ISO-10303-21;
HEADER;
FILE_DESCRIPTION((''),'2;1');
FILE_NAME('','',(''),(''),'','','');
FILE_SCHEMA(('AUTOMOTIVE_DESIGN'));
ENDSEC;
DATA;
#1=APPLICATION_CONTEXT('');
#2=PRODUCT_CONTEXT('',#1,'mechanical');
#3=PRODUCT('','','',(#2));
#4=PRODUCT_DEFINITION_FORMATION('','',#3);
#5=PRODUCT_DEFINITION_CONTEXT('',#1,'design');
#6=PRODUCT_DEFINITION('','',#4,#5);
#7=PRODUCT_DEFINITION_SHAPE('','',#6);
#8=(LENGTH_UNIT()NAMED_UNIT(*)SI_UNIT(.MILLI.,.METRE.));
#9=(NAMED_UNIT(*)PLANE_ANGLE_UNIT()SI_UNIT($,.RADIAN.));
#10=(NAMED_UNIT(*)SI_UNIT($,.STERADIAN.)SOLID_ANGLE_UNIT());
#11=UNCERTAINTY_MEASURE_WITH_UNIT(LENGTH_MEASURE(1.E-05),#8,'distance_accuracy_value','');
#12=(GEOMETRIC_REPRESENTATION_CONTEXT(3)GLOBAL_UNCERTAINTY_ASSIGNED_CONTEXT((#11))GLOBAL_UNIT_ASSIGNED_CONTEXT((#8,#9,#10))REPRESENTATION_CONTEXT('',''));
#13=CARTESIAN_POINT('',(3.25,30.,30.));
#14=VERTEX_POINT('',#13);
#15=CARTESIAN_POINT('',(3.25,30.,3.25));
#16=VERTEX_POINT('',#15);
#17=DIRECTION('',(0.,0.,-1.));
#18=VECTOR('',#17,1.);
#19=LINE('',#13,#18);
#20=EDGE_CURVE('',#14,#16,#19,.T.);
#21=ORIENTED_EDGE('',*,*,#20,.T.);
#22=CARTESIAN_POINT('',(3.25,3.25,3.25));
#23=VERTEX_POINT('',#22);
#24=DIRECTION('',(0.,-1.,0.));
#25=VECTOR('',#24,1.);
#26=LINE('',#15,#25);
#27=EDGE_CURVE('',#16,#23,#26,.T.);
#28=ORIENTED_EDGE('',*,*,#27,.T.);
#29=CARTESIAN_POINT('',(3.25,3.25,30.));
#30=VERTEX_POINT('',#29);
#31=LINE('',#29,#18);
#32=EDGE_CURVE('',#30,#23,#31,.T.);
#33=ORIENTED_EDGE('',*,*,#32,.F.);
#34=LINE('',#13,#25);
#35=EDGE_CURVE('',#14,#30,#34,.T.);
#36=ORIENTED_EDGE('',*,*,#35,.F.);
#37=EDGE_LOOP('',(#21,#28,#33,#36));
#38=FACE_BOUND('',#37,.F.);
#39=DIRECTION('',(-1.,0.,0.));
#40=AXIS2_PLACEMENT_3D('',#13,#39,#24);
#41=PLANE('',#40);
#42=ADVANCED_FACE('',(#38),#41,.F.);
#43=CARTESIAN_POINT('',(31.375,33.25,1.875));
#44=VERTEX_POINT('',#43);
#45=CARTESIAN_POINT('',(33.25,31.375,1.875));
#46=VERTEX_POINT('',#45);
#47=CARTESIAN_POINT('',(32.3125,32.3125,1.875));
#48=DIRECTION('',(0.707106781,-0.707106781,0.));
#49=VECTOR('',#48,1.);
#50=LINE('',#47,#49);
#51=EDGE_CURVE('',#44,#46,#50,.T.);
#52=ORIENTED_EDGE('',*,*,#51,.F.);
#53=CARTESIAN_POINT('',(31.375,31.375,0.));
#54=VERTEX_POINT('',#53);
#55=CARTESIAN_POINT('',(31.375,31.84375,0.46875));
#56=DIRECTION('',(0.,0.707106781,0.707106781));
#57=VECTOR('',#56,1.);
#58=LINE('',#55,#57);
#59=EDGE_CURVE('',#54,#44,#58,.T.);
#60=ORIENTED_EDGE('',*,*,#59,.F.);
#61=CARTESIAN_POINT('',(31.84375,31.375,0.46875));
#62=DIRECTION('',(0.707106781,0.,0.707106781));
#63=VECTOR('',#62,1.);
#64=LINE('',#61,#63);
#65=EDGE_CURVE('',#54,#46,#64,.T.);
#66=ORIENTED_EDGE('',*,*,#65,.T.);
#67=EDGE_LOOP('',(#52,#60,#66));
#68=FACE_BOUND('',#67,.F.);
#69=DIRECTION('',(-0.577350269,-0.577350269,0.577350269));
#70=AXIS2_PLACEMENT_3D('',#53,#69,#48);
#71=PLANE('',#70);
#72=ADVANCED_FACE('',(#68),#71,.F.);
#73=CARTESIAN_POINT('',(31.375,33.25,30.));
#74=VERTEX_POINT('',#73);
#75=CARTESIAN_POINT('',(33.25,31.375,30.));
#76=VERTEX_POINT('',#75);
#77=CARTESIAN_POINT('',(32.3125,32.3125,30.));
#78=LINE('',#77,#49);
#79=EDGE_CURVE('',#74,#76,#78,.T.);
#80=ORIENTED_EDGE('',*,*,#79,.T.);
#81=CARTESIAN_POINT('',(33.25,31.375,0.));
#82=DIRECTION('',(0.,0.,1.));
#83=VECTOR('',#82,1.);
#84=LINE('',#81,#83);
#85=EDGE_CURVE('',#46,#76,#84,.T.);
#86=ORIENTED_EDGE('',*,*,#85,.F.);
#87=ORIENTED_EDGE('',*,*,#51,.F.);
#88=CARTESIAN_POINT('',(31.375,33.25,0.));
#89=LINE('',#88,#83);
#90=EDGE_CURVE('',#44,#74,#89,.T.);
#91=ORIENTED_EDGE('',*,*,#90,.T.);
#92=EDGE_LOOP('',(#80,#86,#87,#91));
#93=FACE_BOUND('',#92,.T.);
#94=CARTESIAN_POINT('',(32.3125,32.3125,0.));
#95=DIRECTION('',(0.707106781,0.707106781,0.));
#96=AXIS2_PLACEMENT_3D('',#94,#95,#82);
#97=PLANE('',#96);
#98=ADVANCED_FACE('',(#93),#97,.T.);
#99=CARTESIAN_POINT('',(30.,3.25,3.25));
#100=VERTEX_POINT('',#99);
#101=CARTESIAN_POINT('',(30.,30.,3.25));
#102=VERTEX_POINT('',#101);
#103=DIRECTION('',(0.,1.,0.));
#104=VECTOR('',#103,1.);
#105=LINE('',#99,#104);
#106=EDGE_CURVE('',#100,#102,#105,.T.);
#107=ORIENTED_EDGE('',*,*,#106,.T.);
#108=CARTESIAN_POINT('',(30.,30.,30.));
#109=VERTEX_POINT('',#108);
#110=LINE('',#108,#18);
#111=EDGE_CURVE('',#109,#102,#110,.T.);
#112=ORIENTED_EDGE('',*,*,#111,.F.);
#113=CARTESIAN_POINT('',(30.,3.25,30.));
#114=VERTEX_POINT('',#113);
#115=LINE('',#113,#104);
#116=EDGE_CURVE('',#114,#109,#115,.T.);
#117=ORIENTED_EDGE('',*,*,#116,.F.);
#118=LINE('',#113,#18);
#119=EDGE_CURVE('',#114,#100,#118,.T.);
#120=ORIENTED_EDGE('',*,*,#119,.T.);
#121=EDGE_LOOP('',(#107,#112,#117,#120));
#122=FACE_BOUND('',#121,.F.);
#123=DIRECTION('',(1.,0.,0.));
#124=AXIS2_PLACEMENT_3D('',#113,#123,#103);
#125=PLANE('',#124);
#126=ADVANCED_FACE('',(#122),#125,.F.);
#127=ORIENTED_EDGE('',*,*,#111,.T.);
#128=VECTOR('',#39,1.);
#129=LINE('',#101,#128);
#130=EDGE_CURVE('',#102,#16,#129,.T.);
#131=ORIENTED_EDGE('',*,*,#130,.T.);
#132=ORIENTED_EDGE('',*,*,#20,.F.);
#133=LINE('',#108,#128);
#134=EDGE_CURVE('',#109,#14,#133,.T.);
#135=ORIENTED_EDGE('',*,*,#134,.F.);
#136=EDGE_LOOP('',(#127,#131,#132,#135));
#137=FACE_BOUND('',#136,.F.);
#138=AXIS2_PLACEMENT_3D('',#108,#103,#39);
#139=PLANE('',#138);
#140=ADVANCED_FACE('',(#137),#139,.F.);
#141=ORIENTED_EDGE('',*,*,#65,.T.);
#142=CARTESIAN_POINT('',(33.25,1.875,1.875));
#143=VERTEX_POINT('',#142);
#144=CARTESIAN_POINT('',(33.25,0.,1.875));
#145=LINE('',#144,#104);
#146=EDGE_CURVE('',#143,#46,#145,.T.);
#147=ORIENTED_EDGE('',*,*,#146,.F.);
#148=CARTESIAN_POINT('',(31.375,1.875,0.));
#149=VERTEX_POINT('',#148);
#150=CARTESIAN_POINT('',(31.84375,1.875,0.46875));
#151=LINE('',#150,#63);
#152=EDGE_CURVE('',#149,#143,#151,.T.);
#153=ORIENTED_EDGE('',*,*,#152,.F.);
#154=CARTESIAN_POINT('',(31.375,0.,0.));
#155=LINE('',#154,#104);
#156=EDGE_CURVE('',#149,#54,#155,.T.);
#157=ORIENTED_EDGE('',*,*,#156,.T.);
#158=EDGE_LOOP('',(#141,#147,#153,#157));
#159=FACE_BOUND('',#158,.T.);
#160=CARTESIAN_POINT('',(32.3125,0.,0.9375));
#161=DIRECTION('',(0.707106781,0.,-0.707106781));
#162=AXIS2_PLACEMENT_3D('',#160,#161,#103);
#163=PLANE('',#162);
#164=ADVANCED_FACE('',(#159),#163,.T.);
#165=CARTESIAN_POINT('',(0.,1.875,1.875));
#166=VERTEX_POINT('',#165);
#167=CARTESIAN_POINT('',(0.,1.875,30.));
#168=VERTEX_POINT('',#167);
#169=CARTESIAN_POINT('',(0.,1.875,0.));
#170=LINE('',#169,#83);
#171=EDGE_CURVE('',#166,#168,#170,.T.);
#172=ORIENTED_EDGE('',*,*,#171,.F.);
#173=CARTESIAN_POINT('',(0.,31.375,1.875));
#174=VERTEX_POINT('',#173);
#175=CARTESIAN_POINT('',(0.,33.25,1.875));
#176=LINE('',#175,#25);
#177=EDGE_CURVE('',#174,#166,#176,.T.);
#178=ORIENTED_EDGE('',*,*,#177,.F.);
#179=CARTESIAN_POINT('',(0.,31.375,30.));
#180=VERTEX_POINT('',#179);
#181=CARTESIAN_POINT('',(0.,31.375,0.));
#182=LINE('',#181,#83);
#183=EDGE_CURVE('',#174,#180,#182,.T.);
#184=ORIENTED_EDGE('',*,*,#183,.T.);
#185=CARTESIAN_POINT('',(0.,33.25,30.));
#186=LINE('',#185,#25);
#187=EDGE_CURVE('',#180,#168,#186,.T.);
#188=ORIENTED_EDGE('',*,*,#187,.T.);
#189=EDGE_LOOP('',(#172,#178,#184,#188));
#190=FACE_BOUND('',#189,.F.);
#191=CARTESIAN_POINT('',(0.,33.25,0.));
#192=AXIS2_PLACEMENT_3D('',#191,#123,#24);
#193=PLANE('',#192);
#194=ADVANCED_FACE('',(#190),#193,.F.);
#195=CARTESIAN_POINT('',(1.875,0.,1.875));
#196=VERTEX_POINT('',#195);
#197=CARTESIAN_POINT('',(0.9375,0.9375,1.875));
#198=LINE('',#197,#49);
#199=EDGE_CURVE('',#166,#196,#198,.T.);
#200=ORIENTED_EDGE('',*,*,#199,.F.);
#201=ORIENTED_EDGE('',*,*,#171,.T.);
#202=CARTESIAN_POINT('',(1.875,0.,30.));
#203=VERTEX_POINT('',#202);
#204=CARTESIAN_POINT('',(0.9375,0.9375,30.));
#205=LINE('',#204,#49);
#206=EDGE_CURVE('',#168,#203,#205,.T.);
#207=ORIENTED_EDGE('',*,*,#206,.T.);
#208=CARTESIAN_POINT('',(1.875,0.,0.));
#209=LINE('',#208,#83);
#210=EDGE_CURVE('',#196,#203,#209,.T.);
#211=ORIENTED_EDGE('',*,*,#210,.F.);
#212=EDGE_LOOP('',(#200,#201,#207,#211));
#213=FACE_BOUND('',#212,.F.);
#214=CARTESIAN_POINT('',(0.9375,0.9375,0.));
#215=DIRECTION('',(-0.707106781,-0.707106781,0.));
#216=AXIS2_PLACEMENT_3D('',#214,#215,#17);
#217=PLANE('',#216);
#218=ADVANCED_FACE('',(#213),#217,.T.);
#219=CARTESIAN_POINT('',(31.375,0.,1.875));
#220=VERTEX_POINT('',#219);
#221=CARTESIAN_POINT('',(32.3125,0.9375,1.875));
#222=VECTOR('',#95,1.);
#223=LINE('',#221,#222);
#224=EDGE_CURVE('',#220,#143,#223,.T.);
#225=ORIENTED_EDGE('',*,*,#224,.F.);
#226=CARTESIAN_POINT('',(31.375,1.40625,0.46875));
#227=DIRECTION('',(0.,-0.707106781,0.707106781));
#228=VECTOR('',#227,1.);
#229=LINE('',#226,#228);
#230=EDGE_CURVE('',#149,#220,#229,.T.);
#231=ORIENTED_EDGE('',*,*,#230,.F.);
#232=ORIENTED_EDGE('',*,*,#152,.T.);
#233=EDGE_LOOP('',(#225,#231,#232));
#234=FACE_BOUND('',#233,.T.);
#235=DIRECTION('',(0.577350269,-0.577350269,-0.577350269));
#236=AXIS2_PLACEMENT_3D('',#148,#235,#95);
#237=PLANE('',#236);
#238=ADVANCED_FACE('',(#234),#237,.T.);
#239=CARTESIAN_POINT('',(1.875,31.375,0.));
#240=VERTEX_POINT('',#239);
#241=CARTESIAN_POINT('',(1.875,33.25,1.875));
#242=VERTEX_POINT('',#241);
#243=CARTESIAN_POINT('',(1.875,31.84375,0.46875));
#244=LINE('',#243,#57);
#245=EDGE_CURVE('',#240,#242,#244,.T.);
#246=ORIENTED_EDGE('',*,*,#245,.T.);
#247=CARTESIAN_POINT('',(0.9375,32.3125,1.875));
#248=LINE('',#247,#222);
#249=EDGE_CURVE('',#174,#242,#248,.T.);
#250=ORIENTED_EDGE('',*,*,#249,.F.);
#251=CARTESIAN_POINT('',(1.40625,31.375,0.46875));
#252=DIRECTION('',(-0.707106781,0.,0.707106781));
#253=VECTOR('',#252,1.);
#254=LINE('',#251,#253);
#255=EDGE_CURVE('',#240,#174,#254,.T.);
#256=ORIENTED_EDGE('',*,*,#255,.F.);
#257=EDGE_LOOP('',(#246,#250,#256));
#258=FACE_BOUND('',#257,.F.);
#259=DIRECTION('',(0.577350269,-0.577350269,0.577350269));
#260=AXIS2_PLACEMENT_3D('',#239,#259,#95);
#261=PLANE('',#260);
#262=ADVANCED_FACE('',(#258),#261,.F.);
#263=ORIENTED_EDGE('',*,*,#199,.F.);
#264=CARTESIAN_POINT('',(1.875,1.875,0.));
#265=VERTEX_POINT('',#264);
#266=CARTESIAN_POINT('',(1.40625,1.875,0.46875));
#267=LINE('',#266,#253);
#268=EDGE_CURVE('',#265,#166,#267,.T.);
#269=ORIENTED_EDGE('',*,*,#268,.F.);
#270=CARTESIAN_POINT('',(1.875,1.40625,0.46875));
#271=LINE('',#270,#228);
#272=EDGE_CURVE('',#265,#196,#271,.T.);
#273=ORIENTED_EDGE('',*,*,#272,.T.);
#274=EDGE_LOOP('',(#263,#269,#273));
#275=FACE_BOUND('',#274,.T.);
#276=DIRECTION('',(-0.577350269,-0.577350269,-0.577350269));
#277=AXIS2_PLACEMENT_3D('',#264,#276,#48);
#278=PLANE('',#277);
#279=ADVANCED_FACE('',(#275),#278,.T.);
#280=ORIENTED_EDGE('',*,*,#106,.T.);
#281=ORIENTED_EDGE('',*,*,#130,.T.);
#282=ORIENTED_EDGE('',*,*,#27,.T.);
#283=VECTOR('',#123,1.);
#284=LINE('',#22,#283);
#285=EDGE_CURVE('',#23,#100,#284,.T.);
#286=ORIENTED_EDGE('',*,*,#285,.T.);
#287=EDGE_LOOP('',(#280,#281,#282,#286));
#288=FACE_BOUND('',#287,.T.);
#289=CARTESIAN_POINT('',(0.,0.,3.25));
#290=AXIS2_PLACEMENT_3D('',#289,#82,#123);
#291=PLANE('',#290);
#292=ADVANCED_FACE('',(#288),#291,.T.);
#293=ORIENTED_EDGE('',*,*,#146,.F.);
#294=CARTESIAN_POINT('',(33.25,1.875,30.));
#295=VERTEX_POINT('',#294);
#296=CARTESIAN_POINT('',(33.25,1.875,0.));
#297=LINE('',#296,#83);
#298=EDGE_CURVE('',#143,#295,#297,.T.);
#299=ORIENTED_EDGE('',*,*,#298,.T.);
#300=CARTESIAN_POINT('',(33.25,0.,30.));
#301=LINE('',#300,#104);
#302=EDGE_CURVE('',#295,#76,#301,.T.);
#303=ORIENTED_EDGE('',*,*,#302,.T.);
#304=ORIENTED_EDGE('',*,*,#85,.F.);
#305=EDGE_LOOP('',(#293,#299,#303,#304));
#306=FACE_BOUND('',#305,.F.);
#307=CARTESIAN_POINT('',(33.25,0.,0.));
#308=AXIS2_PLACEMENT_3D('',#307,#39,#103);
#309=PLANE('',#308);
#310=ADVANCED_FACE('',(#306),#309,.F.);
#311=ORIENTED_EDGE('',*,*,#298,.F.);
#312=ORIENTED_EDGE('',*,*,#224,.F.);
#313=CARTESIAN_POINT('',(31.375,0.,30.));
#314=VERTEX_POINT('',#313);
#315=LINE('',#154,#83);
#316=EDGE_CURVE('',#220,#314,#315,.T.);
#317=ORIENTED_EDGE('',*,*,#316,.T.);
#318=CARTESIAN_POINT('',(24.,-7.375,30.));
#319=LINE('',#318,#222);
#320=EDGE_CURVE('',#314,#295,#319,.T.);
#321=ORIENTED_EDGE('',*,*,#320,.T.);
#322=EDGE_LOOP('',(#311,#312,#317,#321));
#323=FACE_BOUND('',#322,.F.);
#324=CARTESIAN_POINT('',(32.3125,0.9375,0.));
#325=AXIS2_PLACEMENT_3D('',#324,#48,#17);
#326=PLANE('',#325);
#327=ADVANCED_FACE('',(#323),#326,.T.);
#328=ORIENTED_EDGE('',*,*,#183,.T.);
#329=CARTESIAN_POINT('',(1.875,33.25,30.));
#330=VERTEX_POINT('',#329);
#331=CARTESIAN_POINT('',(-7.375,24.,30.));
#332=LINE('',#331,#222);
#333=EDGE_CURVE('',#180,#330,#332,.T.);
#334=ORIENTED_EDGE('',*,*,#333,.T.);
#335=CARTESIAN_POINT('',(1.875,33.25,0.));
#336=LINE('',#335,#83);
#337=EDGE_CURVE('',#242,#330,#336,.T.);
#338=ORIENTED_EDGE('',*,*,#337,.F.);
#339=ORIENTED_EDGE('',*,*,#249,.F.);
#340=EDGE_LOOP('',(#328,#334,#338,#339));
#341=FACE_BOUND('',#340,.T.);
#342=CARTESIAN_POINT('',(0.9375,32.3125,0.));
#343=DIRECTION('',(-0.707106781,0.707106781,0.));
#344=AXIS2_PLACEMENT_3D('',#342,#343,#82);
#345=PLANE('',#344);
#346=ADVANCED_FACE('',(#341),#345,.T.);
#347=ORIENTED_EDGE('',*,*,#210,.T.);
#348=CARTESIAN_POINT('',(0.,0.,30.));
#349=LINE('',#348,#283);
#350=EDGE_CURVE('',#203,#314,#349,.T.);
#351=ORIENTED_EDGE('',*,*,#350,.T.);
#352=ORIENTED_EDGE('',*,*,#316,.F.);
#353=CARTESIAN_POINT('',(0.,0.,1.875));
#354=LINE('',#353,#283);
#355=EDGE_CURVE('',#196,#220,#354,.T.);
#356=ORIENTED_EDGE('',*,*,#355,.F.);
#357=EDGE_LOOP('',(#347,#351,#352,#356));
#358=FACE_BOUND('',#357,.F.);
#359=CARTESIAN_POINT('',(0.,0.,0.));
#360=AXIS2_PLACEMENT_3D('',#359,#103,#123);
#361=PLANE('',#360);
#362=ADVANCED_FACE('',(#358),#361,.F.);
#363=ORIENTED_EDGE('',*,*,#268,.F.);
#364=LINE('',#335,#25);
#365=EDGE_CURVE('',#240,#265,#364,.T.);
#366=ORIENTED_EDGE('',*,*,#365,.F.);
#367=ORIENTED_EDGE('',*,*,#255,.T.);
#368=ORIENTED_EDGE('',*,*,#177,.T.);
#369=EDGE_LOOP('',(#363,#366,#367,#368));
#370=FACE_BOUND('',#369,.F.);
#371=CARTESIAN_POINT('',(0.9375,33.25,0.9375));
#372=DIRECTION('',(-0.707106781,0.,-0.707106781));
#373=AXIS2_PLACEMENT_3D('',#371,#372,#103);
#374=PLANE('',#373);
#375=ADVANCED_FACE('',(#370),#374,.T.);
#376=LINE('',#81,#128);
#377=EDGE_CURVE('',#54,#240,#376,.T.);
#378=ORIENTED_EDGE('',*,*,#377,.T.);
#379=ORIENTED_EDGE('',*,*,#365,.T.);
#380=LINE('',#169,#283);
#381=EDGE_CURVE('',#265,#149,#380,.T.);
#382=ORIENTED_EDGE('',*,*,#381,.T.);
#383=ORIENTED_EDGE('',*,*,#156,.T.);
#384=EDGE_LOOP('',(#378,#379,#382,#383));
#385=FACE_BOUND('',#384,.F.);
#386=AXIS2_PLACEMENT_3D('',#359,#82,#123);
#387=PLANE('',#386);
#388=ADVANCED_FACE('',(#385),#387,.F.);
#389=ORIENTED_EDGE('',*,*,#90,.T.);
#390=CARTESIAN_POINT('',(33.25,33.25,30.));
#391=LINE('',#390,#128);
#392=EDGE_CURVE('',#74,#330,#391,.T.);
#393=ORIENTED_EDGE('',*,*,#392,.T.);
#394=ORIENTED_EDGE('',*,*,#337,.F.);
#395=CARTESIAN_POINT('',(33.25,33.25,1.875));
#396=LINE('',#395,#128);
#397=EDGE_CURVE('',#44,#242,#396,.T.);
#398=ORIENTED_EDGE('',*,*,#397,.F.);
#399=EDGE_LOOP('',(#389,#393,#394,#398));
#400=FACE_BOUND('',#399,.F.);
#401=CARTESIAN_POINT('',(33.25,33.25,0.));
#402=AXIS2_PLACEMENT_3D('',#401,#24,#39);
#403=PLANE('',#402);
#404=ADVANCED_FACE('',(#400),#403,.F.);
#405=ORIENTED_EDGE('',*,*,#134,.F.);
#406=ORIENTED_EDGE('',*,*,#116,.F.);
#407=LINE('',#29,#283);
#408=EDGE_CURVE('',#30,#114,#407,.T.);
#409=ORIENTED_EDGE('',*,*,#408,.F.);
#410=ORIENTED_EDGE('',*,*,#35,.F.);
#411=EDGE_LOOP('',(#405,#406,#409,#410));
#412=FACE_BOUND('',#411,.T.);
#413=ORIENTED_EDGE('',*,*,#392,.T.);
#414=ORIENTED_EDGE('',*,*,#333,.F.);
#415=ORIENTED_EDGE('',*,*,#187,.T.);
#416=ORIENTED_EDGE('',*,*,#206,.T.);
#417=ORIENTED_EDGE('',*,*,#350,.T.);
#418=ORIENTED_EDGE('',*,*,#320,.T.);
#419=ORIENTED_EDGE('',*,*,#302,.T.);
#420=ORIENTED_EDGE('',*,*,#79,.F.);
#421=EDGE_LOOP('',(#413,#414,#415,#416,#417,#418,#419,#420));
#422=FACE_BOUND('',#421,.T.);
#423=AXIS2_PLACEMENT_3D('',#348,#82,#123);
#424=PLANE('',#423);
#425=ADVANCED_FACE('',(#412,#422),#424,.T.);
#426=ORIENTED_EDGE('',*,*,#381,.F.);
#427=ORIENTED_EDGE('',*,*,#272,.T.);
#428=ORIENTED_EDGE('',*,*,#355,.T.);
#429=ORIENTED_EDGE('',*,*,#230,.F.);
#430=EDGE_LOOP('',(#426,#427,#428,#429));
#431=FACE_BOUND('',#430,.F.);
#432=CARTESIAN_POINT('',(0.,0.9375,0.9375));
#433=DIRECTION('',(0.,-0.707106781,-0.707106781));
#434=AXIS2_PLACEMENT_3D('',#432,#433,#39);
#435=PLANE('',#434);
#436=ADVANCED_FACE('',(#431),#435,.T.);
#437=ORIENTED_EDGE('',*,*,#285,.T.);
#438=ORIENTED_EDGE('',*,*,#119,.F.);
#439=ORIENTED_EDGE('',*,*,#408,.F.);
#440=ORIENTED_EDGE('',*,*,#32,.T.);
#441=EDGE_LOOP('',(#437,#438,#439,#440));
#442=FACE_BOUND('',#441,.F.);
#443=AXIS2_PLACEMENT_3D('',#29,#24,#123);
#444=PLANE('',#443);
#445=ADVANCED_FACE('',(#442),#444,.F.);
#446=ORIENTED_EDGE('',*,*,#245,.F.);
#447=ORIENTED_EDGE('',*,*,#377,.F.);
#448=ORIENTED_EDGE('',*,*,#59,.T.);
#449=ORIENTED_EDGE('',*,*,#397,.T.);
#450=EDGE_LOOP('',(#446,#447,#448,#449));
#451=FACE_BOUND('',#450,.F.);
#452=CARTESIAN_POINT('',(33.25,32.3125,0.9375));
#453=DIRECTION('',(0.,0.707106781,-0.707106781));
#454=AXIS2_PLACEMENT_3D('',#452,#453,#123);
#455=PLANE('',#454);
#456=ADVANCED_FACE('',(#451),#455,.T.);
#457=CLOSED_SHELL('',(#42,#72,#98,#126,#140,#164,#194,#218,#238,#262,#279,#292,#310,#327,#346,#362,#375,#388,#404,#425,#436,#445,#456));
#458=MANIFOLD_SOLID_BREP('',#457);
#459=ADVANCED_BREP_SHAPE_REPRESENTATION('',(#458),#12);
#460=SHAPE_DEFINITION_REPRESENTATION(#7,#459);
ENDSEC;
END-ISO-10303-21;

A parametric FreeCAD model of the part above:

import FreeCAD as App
import Part
import Sketcher


def edges_at(feature, points):
    """Names of the edges that pass closest to the given points."""
    edges = feature.Shape.Edges
    near = lambda p: min(range(len(edges)), key=lambda i: edges[i].distToShape(Part.Vertex(*p))[0])
    return sorted({f"Edge{near(p) + 1}" for p in points})


def add_polygon(sketch, points):
    """Adds a closed chain of lines whose ends are joined by coincident constraints."""
    first, n = sketch.GeometryCount, len(points)
    for a, b in zip(points, points[1:] + points[:1]):
        sketch.addGeometry(Part.LineSegment(App.Vector(*a, 0), App.Vector(*b, 0)), False)
    for i in range(n):
        sketch.addConstraint(Sketcher.Constraint("Coincident", first + i, 2, first + (i + 1) % n, 1))

doc = App.newDocument("Part")
body = doc.addObject("PartDesign::Body", "Body")

# Sketch on XY plane
sketch1 = body.newObject("Sketcher::SketchObject", "Sketch")
sketch1.AttachmentSupport = (doc.getObject("XY_Plane"), [""])
sketch1.MapMode = "FlatFace"
add_polygon(sketch1, [(0, 33), (0, 0), (33, 0), (33, 33)])  # lines 0-3
sketch1.addConstraint([
    Sketcher.Constraint("Vertical", 0),
    Sketcher.Constraint("Horizontal", 1),
    Sketcher.Constraint("Vertical", 2),
    Sketcher.Constraint("Horizontal", 3),
    Sketcher.Constraint("Coincident", 0, 2, -1, 1),
    Sketcher.Constraint("Equal", 3, 0),
    Sketcher.Constraint("DistanceX", 1, 1, 1, 2, 33.25),
])
pad1 = body.newObject("PartDesign::Pad", "Pad")
pad1.Profile = sketch1
pad1.Length = 30

# Sketch on XY plane
sketch2 = body.newObject("Sketcher::SketchObject", "Sketch001")
sketch2.AttachmentSupport = (doc.getObject("XY_Plane"), [""])
sketch2.MapMode = "FlatFace"
sketch2.AttachmentOffset = App.Placement(App.Vector(0, 0, 30), App.Rotation())
add_polygon(sketch2, [(3, 30), (3, 3), (30, 3), (30, 30)])  # lines 0-3
sketch2.addConstraint([
    Sketcher.Constraint("Vertical", 0),
    Sketcher.Constraint("Horizontal", 1),
    Sketcher.Constraint("Vertical", 2),
    Sketcher.Constraint("Horizontal", 3),
    Sketcher.Constraint("Equal", 3, 0),
    Sketcher.Constraint("DistanceX", 1, 1, 1, 2, 26.75),
    Sketcher.Constraint("DistanceX", -1, 1, 1, 2, 30.0),
    Sketcher.Constraint("DistanceY", -1, 1, 2, 2, 30.0),
])
pocket1 = body.newObject("PartDesign::Pocket", "Pocket")
pocket1.Profile = sketch2
pocket1.Length = 26.75
doc.recompute()

chamfer = body.newObject("PartDesign::Chamfer", "Chamfer")
chamfer.Base = (pocket1, edges_at(pocket1, [
    (33.25, 33.25, 15),
    (33.25, 0, 15),
    (0, 33.25, 15),
    (0, 0, 15),
    (0, 16.625, 0),
    (16.625, 33.25, 0),
    (16.625, 0, 0),
    (33.25, 16.625, 0),
]))
chamfer.Size = 1.875

doc.recompute()
